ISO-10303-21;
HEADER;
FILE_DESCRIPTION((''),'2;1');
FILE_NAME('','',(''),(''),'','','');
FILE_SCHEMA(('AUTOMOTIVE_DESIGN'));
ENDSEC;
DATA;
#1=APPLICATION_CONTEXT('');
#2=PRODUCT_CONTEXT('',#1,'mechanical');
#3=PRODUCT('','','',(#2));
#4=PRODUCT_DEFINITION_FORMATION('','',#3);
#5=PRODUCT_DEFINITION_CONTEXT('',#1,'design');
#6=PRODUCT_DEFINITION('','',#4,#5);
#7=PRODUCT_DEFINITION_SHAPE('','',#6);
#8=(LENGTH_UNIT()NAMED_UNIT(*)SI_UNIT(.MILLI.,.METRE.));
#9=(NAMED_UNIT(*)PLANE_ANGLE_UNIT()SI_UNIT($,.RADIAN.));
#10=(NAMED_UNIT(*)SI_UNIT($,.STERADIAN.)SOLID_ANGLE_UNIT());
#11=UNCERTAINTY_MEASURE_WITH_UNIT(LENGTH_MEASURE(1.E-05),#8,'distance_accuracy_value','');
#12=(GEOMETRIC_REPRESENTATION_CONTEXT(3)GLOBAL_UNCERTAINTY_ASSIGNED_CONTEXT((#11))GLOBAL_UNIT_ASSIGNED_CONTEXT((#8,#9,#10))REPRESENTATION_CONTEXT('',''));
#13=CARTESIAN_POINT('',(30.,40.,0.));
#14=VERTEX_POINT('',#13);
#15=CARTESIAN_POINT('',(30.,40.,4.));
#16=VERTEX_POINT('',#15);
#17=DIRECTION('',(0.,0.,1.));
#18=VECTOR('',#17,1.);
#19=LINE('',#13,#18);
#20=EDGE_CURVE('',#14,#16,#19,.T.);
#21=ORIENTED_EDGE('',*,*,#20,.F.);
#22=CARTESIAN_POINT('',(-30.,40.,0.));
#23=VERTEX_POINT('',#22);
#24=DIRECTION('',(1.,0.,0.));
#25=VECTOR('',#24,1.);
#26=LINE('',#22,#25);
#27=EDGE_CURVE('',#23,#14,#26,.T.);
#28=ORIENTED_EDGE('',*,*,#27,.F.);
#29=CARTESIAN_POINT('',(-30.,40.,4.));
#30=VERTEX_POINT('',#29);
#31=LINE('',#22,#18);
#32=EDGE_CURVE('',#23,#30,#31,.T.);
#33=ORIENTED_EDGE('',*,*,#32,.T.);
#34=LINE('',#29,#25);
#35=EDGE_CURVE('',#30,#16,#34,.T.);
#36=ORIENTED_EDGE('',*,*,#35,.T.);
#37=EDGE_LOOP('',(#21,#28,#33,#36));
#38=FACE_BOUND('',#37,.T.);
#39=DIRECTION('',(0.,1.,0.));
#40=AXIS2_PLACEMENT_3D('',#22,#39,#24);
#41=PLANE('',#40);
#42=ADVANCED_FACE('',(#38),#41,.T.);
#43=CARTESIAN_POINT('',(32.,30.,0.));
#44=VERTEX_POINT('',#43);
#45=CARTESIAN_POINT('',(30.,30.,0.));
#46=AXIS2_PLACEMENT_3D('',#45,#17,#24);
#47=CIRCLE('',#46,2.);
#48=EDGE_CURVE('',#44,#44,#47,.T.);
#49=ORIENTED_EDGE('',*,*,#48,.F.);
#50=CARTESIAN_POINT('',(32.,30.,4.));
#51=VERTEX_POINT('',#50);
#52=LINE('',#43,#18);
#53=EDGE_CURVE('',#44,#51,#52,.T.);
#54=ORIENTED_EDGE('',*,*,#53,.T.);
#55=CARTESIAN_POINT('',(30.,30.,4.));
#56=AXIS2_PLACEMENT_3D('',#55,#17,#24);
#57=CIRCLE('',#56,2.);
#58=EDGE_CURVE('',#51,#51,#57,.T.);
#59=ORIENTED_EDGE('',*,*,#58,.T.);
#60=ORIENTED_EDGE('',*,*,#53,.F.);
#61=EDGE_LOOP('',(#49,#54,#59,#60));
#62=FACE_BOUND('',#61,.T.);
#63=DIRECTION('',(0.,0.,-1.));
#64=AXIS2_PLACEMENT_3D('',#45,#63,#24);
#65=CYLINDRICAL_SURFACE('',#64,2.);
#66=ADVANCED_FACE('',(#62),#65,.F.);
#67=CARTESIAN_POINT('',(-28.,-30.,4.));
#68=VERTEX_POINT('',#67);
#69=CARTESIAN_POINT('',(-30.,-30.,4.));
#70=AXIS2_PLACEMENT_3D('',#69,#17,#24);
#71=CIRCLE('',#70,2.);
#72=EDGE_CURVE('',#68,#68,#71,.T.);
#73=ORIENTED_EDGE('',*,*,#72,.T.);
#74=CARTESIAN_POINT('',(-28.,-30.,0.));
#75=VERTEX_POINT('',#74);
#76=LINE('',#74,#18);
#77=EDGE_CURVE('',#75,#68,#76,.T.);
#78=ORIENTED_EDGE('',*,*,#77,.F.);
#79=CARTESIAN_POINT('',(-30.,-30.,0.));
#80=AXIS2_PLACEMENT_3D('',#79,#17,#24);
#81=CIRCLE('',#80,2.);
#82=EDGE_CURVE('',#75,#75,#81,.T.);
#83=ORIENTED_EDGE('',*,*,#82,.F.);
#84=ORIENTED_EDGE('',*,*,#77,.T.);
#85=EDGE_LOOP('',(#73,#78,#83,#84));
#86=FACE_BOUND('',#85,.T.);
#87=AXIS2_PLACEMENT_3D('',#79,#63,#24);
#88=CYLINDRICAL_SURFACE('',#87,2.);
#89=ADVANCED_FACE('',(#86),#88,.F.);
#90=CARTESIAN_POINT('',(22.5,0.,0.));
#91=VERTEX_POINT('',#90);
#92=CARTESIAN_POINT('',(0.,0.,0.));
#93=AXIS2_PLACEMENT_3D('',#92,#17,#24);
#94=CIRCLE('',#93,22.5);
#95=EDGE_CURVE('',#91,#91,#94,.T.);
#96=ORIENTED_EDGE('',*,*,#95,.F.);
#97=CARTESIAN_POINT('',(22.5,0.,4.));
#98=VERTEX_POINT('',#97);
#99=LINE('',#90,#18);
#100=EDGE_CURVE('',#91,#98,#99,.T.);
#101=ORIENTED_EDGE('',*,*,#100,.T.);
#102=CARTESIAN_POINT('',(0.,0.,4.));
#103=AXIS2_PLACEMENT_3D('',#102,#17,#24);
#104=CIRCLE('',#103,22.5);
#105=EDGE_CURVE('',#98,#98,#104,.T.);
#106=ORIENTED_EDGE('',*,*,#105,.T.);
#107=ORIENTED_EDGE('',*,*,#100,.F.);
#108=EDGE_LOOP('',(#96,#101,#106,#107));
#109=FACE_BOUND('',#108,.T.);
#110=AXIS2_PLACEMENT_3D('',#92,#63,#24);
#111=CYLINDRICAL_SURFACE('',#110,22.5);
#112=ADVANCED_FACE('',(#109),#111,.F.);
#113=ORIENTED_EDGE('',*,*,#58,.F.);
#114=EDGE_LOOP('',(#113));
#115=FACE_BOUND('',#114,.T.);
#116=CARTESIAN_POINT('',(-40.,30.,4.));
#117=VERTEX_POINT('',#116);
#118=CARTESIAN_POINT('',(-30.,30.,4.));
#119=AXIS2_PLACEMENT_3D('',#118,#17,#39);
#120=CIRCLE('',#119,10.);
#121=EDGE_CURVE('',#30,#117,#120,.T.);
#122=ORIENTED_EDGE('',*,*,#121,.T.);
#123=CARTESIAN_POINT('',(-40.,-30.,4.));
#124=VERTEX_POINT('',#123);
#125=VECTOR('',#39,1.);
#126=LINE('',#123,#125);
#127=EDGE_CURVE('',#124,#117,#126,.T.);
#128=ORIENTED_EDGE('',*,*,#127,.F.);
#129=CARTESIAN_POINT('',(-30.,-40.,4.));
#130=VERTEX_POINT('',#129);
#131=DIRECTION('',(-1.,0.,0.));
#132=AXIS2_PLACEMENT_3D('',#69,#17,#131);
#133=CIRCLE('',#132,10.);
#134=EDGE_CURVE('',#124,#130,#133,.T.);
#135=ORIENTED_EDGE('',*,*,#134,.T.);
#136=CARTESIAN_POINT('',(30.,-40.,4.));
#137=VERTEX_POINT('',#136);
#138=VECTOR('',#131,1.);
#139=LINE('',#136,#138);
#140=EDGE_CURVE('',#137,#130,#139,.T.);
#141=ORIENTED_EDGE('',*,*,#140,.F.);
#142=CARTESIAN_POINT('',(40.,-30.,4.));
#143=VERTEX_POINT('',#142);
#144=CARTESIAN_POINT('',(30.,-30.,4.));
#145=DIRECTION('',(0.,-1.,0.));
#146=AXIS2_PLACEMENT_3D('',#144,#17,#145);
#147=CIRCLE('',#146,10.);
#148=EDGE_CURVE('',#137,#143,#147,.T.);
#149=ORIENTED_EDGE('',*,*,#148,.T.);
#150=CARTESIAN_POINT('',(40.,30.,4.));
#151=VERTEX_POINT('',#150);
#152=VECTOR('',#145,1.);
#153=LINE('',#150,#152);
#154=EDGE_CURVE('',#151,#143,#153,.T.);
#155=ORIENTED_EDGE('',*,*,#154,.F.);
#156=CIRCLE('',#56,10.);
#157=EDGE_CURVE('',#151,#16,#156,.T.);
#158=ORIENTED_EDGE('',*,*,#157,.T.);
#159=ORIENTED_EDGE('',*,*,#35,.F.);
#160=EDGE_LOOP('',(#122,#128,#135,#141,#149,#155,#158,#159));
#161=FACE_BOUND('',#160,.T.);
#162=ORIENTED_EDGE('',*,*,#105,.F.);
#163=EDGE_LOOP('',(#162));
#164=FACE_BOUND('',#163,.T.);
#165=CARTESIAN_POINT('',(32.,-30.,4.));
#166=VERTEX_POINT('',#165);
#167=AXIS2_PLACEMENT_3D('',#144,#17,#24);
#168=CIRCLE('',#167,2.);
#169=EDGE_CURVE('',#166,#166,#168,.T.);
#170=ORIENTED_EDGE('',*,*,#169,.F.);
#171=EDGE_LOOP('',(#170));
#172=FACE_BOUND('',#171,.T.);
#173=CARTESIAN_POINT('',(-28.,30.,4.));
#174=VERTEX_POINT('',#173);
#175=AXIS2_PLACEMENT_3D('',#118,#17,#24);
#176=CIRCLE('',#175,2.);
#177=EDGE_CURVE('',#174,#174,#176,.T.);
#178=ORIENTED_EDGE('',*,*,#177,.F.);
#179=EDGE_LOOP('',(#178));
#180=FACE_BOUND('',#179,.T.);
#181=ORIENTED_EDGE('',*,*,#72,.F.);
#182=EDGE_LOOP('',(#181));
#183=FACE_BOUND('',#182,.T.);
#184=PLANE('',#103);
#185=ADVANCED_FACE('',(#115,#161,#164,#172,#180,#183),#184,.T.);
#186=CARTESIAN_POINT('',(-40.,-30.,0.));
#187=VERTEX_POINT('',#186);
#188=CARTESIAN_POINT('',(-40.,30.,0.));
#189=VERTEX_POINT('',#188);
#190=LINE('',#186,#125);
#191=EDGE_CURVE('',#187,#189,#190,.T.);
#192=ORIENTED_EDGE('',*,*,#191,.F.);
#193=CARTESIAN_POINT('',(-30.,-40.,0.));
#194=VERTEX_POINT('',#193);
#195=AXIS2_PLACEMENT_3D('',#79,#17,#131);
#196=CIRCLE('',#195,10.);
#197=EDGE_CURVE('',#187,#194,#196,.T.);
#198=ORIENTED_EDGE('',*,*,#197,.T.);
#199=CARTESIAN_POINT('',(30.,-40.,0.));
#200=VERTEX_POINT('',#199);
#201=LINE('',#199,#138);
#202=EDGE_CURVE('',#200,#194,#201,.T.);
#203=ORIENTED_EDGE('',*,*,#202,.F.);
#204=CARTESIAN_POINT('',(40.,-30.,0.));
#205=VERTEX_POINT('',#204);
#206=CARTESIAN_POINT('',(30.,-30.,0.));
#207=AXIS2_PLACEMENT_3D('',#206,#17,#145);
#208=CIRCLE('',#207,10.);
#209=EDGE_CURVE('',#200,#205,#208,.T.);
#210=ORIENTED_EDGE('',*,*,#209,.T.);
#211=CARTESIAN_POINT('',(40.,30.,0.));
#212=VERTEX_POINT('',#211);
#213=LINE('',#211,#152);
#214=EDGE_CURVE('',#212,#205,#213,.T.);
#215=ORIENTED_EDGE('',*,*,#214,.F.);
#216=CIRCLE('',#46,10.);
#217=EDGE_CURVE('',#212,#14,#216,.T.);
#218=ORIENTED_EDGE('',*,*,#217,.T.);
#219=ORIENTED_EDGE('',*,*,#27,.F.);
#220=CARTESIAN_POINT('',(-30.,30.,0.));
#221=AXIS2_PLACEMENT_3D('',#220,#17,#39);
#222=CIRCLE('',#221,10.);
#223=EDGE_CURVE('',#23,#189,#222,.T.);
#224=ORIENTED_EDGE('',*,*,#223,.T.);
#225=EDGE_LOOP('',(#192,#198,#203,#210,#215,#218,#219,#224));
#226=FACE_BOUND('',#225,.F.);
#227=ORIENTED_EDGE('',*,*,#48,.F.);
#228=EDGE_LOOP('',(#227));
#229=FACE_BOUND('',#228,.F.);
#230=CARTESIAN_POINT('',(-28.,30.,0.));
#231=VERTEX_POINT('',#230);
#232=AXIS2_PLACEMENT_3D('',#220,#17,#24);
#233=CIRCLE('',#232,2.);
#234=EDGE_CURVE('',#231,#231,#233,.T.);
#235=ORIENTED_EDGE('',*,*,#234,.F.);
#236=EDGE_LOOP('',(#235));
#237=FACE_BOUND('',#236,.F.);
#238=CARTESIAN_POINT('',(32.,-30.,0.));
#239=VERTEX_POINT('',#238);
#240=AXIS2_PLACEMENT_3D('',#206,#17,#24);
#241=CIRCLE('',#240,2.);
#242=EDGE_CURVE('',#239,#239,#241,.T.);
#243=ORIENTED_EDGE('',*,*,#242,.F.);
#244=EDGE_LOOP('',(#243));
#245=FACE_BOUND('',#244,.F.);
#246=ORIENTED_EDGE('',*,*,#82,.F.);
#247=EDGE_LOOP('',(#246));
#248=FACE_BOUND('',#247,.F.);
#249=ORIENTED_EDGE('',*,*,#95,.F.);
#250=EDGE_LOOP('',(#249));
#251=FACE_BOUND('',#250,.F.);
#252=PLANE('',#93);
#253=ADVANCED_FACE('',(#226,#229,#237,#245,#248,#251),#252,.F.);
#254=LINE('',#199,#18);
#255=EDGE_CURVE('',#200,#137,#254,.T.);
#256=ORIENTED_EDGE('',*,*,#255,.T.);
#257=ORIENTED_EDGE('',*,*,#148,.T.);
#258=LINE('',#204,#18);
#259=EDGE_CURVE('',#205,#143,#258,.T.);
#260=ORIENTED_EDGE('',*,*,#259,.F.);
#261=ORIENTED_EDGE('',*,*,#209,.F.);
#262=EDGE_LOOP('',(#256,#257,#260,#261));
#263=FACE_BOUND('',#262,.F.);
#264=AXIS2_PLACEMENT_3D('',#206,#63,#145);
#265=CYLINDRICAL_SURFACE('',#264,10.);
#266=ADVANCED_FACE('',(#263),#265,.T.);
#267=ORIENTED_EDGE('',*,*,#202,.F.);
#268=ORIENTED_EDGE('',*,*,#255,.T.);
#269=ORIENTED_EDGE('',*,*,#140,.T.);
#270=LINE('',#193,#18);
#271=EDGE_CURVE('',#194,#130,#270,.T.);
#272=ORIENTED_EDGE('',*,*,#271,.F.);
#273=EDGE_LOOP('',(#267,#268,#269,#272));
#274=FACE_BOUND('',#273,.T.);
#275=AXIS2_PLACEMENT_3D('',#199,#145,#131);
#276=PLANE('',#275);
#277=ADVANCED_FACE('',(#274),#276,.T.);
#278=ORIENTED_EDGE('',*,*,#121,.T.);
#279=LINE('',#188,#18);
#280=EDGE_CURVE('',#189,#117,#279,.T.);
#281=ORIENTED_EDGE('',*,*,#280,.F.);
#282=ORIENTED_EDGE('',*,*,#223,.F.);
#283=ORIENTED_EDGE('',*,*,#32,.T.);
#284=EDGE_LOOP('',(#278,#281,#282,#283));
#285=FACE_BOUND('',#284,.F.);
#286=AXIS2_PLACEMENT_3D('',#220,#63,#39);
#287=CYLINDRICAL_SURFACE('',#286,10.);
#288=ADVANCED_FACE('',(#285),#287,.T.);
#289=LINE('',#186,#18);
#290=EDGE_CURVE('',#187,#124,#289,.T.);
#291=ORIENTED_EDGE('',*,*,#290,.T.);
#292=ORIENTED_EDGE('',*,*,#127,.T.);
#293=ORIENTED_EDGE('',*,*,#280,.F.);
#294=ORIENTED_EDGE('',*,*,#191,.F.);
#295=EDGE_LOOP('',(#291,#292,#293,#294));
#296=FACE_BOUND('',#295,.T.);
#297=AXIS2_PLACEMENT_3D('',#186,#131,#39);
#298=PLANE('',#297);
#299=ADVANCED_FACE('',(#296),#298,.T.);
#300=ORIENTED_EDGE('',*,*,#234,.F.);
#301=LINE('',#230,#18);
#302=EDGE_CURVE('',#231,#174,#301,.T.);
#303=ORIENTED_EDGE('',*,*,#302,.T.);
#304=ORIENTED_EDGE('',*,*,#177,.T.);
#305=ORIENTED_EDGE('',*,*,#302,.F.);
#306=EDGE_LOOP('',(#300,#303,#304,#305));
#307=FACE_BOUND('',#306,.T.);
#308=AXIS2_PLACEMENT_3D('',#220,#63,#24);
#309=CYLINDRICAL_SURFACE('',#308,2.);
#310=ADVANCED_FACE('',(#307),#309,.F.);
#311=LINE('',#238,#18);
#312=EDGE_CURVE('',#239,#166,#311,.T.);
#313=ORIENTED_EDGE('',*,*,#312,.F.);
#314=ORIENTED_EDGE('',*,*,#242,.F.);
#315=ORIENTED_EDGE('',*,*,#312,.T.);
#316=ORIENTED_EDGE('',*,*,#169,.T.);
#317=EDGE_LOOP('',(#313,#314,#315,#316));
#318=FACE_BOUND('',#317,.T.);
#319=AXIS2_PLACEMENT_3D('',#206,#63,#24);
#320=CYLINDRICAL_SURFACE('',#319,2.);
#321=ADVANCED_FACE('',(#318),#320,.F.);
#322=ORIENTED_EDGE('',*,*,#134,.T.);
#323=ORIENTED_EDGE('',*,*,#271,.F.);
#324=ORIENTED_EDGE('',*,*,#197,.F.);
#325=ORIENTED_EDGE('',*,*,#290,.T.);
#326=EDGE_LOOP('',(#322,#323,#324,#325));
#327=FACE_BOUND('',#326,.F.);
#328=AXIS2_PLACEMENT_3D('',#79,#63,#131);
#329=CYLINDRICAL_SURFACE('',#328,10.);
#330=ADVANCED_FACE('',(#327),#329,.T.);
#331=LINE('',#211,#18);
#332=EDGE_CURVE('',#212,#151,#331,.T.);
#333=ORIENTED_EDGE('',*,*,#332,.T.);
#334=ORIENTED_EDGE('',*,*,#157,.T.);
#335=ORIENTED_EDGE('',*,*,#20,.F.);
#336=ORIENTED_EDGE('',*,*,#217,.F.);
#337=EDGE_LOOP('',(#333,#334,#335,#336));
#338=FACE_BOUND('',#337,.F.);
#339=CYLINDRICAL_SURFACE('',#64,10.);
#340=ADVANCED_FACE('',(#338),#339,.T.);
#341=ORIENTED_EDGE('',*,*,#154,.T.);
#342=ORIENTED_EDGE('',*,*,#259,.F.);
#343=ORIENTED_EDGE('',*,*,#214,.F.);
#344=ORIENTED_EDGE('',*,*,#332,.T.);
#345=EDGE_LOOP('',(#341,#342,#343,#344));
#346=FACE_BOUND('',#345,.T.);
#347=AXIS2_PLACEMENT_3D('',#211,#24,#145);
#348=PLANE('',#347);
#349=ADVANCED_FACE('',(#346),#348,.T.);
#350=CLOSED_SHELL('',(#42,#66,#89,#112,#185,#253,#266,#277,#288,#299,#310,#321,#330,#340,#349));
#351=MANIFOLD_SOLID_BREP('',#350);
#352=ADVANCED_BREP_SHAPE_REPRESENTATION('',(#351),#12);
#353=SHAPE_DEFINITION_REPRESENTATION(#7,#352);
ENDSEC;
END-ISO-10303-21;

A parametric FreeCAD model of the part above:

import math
import FreeCAD as App
import Part
import Sketcher
from FreeCAD import Vector
Q = App.Units.Quantity

doc = App.newDocument("Part")
body = doc.addObject("PartDesign::Body", "Body")

# Sketch on XY plane
sketch1 = body.newObject("Sketcher::SketchObject", "Sketch")
sketch1.AttachmentSupport = (doc.getObject("XY_Plane"), [""])
sketch1.MapMode = "FlatFace"
sketch1.addGeometry(Part.LineSegment(Vector(-40, 30, 0), Vector(-40, -30, 0)), False)
sketch1.addGeometry(Part.ArcOfCircle(Part.Circle(Vector(-30, -30, 0), Vector(0, 0, 1), 10), math.radians(180), math.radians(270)), False)
sketch1.addGeometry(Part.LineSegment(Vector(-30, -40, 0), Vector(30, -40, 0)), False)
sketch1.addGeometry(Part.ArcOfCircle(Part.Circle(Vector(30, -30, 0), Vector(0, 0, 1), 10), math.radians(-90), math.radians(0)), False)
sketch1.addGeometry(Part.LineSegment(Vector(40, -30, 0), Vector(40, 30, 0)), False)
sketch1.addGeometry(Part.ArcOfCircle(Part.Circle(Vector(30, 30, 0), Vector(0, 0, 1), 10), math.radians(0), math.radians(90)), False)
sketch1.addGeometry(Part.LineSegment(Vector(30, 40, 0), Vector(-30, 40, 0)), False)
sketch1.addGeometry(Part.ArcOfCircle(Part.Circle(Vector(-30, 30, 0), Vector(0, 0, 1), 10), math.radians(90), math.radians(180)), False)
sketch1.addGeometry(Part.Circle(Vector(-30, -30, 0), Vector(0, 0, 1), 2), False)
sketch1.addGeometry(Part.Circle(Vector(30, -30, 0), Vector(0, 0, 1), 2), False)
sketch1.addGeometry(Part.Circle(Vector(-30, 30, 0), Vector(0, 0, 1), 2), False)
sketch1.addGeometry(Part.Circle(Vector(0, 0, 0), Vector(0, 0, 1), 22.5), False)
sketch1.addGeometry(Part.Circle(Vector(30, 30, 0), Vector(0, 0, 1), 2), False)
sketch1.addConstraint(Sketcher.Constraint("Tangent", 0, 2, 1, 1))
sketch1.addConstraint(Sketcher.Constraint("Tangent", 1, 2, 2, 1))
sketch1.addConstraint(Sketcher.Constraint("Tangent", 2, 2, 3, 1))
sketch1.addConstraint(Sketcher.Constraint("Tangent", 3, 2, 4, 1))
sketch1.addConstraint(Sketcher.Constraint("Tangent", 4, 2, 5, 1))
sketch1.addConstraint(Sketcher.Constraint("Tangent", 5, 2, 6, 1))
sketch1.addConstraint(Sketcher.Constraint("Tangent", 6, 2, 7, 1))
sketch1.addConstraint(Sketcher.Constraint("Tangent", 7, 2, 0, 1))
sketch1.addConstraint(Sketcher.Constraint("Vertical", 0))
sketch1.addConstraint(Sketcher.Constraint("Horizontal", 2))
sketch1.addConstraint(Sketcher.Constraint("Vertical", 4))
sketch1.addConstraint(Sketcher.Constraint("Horizontal", 6))
sketch1.addConstraint(Sketcher.Constraint("Coincident", 11, 3, -1, 1))
sketch1.addConstraint(Sketcher.Constraint("Coincident", 8, 3, 1, 3))
sketch1.addConstraint(Sketcher.Constraint("Coincident", 9, 3, 3, 3))
sketch1.addConstraint(Sketcher.Constraint("Coincident", 10, 3, 7, 3))
sketch1.addConstraint(Sketcher.Constraint("Coincident", 12, 3, 5, 3))
sketch1.addConstraint(Sketcher.Constraint("Equal", 1, 3))
sketch1.addConstraint(Sketcher.Constraint("Equal", 3, 5))
sketch1.addConstraint(Sketcher.Constraint("Equal", 5, 7))
sketch1.addConstraint(Sketcher.Constraint("Equal", 8, 9))
sketch1.addConstraint(Sketcher.Constraint("Equal", 9, 10))
sketch1.addConstraint(Sketcher.Constraint("Equal", 10, 12))
sketch1.addConstraint(Sketcher.Constraint("Symmetric", 1, 3, 5, 3, -1, 1))
sketch1.addConstraint(Sketcher.Constraint("Equal", 6, 0))
sketch1.addConstraint(Sketcher.Constraint("Diameter", 8, Q("4 mm")))
sketch1.addConstraint(Sketcher.Constraint("Diameter", 11, Q("45 mm")))
sketch1.addConstraint(Sketcher.Constraint("Radius", 1, Q("10 mm")))
sketch1.addConstraint(Sketcher.Constraint("DistanceX", 2, 1, 2, 2, Q("60 mm")))
pad1 = body.newObject("PartDesign::Pad", "Pad")
pad1.Profile = sketch1
pad1.Length = 4

doc.recompute()
